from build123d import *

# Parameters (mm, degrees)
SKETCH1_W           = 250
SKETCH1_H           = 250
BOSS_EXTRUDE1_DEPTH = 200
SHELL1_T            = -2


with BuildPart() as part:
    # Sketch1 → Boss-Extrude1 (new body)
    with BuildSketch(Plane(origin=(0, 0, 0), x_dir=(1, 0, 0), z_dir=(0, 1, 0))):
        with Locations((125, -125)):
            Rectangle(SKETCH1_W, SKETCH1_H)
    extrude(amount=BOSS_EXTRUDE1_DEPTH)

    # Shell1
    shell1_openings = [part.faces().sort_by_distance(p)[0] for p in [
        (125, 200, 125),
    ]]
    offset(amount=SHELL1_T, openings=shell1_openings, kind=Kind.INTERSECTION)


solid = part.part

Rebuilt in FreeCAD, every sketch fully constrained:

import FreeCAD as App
import Part
import Sketcher
Q = App.Units.Quantity


def faces_at(feature, points):
    """Names of the faces that lie closest to the given points."""
    faces = feature.Shape.Faces
    near = lambda p: min(range(len(faces)), key=lambda i: faces[i].distToShape(Part.Vertex(*p))[0])
    return sorted({f"Face{near(p) + 1}" for p in points})


def add_polygon(sketch, points):
    """Adds a closed chain of lines whose ends are joined by coincident constraints."""
    first, n = sketch.GeometryCount, len(points)
    for a, b in zip(points, points[1:] + points[:1]):
        sketch.addGeometry(Part.LineSegment(App.Vector(*a, 0), App.Vector(*b, 0)), False)
    for i in range(n):
        sketch.addConstraint(Sketcher.Constraint("Coincident", first + i, 2, first + (i + 1) % n, 1))

doc = App.newDocument("Part")
body = doc.addObject("PartDesign::Body", "Body")

# Sketch on XZ plane
sketch1 = body.newObject("Sketcher::SketchObject", "Sketch")
sketch1.AttachmentSupport = (doc.getObject("XZ_Plane"), [""])
sketch1.MapMode = "FlatFace"
add_polygon(sketch1, [(0, 0), (0, 250), (250, 250), (250, 0)])  # lines 0-3
sketch1.addConstraint([
    Sketcher.Constraint("Vertical", 0),
    Sketcher.Constraint("Horizontal", 1),
    Sketcher.Constraint("Vertical", 2),
    Sketcher.Constraint("Horizontal", 3),
    Sketcher.Constraint("Coincident", 3, 2, -1, 1),
    Sketcher.Constraint("Equal", 3, 0),
    Sketcher.Constraint("DistanceX", 1, 1, 1, 2, Q("250 mm")),
])
pad1 = body.newObject("PartDesign::Pad", "Pad")
pad1.Profile = sketch1
pad1.Length = 200
pad1.Reversed = True
doc.recompute()

thickness = body.newObject("PartDesign::Thickness", "Thickness")
thickness.Base = (pad1, faces_at(pad1, [(125, 200, 125)]))
thickness.Value = 2
thickness.Reversed = True
thickness.Join = "Intersection"

doc.recompute()
